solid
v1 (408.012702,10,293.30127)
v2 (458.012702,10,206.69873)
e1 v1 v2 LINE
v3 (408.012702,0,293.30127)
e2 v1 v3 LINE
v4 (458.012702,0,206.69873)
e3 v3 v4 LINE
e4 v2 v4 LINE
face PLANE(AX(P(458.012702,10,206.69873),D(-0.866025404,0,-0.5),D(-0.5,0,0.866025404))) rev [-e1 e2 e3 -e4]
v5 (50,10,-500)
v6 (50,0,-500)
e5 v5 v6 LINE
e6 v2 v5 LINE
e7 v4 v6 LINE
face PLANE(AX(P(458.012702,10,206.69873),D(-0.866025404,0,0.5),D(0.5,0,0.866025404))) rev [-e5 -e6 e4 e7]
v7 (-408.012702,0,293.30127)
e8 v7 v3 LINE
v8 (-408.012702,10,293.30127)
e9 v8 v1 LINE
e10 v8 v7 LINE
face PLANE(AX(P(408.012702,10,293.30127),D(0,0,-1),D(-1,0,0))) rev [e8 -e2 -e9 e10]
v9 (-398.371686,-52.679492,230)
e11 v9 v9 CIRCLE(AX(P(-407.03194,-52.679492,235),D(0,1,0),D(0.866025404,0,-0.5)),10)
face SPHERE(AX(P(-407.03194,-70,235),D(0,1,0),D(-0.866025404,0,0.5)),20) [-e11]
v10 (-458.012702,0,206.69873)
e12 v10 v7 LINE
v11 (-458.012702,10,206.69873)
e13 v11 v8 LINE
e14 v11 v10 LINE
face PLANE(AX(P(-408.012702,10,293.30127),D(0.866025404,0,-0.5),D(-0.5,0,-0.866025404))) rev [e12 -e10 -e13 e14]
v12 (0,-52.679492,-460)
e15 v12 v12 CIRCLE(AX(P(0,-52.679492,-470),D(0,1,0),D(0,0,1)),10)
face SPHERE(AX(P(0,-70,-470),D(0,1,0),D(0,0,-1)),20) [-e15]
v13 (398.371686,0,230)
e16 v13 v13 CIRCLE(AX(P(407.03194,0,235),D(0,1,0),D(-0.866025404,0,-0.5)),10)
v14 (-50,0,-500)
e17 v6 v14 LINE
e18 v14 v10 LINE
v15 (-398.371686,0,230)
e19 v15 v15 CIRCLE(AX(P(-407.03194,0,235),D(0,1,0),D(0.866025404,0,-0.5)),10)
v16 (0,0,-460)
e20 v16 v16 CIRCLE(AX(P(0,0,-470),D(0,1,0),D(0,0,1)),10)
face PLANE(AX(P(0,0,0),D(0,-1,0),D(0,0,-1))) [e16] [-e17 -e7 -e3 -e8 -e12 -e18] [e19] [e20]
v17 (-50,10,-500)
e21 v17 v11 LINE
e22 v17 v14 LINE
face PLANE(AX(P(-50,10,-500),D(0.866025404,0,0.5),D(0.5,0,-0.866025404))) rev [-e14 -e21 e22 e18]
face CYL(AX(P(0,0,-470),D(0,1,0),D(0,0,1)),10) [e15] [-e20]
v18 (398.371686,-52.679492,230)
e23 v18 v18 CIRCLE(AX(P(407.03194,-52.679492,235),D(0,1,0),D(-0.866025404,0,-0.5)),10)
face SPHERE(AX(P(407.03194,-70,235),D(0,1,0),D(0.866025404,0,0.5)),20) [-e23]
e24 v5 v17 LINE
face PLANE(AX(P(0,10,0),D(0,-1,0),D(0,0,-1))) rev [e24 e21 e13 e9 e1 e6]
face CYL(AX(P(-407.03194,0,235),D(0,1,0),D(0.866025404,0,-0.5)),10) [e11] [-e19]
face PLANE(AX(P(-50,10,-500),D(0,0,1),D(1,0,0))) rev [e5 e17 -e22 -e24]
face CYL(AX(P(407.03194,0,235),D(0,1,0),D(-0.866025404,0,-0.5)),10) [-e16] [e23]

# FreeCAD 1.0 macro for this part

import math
import FreeCAD as App
import Part
import Sketcher
from FreeCAD import Vector
Q = App.Units.Quantity

doc = App.newDocument("Part")
body = doc.addObject("PartDesign::Body", "Body")

# Sketch on XZ plane
sketch1 = body.newObject("Sketcher::SketchObject", "Sketch")
sketch1.AttachmentSupport = (doc.getObject("XZ_Plane"), [""])
sketch1.MapMode = "FlatFace"
sketch1.addGeometry(Part.LineSegment(Vector(50, -500, 0), Vector(-50, -500, 0)), False)
sketch1.addGeometry(Part.LineSegment(Vector(-50, -500, 0), Vector(-458.012702, 206.69873, 0)), False)
sketch1.addGeometry(Part.LineSegment(Vector(-458.012702, 206.69873, 0), Vector(-408.012702, 293.30127, 0)), False)
sketch1.addGeometry(Part.LineSegment(Vector(-408.012702, 293.30127, 0), Vector(408.012702, 293.30127, 0)), False)
sketch1.addGeometry(Part.LineSegment(Vector(408.012702, 293.30127, 0), Vector(458.012702, 206.69873, 0)), False)
sketch1.addGeometry(Part.LineSegment(Vector(458.012702, 206.69873, 0), Vector(50, -500, 0)), False)
sketch1.addConstraint(Sketcher.Constraint("Coincident", 0, 2, 1, 1))
sketch1.addConstraint(Sketcher.Constraint("Coincident", 1, 2, 2, 1))
sketch1.addConstraint(Sketcher.Constraint("Coincident", 2, 2, 3, 1))
sketch1.addConstraint(Sketcher.Constraint("Coincident", 3, 2, 4, 1))
sketch1.addConstraint(Sketcher.Constraint("Coincident", 4, 2, 5, 1))
sketch1.addConstraint(Sketcher.Constraint("Coincident", 5, 2, 0, 1))
sketch1.addConstraint(Sketcher.Constraint("Horizontal", 0))
sketch1.addConstraint(Sketcher.Constraint("Horizontal", 3))
sketch1.addConstraint(Sketcher.Constraint("Symmetric", 1, 2, 4, 2, -2))
sketch1.addConstraint(Sketcher.Constraint("Parallel", 1, 4))
sketch1.addConstraint(Sketcher.Constraint("Parallel", 2, 5))
sketch1.addConstraint(Sketcher.Constraint("Equal", 2, 4))
sketch1.addConstraint(Sketcher.Constraint("DistanceX", 0, 2, 0, 1, 100.0))
sketch1.addConstraint(Sketcher.Constraint("Angle", 1, Q("120 deg")))
sketch1.addConstraint(Sketcher.Constraint("Distance", 2, 100.0))
sketch1.addConstraint(Sketcher.Constraint("DistanceY", 0, 2, -1, 1, 500.0))
sketch1.addConstraint(Sketcher.Constraint("DistanceX", 1, 2, -1, 1, 458.012702))
pad1 = body.newObject("PartDesign::Pad", "Pad")
pad1.Profile = sketch1
pad1.Length = 10
pad1.Reversed = True

# Sketch on YZ plane
sketch2 = body.newObject("Sketcher::SketchObject", "Sketch001")
sketch2.AttachmentSupport = (doc.getObject("YZ_Plane"), [""])
sketch2.MapMode = "FlatFace"
sketch2.addGeometry(Part.LineSegment(Vector(0, -470, 0), Vector(-90, -470, 0)), False)
sketch2.addGeometry(Part.ArcOfCircle(Part.Circle(Vector(-70, -470, 0), Vector(0, 0, 1), 20), math.radians(180), math.radians(330)), False)
sketch2.addGeometry(Part.LineSegment(Vector(-52.679492, -480, 0), Vector(0, -480, 0)), False)
sketch2.addGeometry(Part.LineSegment(Vector(0, -480, 0), Vector(0, -470, 0)), False)
sketch2.addGeometry(Part.LineSegment(Vector(0, -470, 0), Vector(-90, -470, 0)), True)  # axis
sketch2.addConstraint(Sketcher.Constraint("Coincident", 0, 2, 1, 1))
sketch2.addConstraint(Sketcher.Constraint("Coincident", 1, 2, 2, 1))
sketch2.addConstraint(Sketcher.Constraint("Coincident", 2, 2, 3, 1))
sketch2.addConstraint(Sketcher.Constraint("Coincident", 3, 2, 0, 1))
sketch2.addConstraint(Sketcher.Constraint("Horizontal", 0))
sketch2.addConstraint(Sketcher.Constraint("Horizontal", 2))
sketch2.addConstraint(Sketcher.Constraint("Vertical", 3))
sketch2.addConstraint(Sketcher.Constraint("Horizontal", 4))
sketch2.addConstraint(Sketcher.Constraint("Coincident", 4, 1, 3, 2))
sketch2.addConstraint(Sketcher.Constraint("PointOnObject", 2, 2, -2))
sketch2.addConstraint(Sketcher.Constraint("Horizontal", 1, 3, 0, 2))
sketch2.addConstraint(Sketcher.Constraint("Equal", 0, 4))
sketch2.addConstraint(Sketcher.Constraint("Radius", 1, 20.0))
sketch2.addConstraint(Sketcher.Constraint("DistanceX", 0, 2, 0, 1, 90.0))
sketch2.addConstraint(Sketcher.Constraint("DistanceY", 3, 1, 3, 2, 10.0))
sketch2.addConstraint(Sketcher.Constraint("DistanceY", 1, 3, -1, 1, 470.0))
revolution = body.newObject("PartDesign::Revolution", "Revolution")
revolution.Profile = sketch2
revolution.ReferenceAxis = (sketch2, ["Axis0"])
revolution.Angle = 360
doc.recompute()

polarpattern = body.newObject("PartDesign::PolarPattern", "PolarPattern")
polarpattern.Originals = [revolution]
polarpattern.Axis = (doc.getObject("Y_Axis"), [""])
polarpattern.Angle = 360
polarpattern.Occurrences = 3
body.Tip = polarpattern

doc.recompute()
